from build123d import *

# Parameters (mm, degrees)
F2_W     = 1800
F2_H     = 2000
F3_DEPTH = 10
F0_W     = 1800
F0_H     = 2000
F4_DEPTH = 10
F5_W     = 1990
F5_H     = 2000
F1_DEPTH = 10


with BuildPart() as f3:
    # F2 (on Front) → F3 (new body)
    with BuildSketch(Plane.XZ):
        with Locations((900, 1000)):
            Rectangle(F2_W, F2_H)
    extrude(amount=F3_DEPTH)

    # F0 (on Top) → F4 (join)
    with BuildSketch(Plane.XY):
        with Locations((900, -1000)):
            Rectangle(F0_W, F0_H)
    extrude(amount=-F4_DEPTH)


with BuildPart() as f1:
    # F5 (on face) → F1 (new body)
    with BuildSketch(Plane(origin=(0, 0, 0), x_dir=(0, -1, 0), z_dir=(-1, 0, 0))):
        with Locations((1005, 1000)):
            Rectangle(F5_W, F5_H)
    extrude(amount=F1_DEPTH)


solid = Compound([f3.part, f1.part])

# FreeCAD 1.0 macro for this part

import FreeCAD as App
import Part
import Sketcher


def add_polygon(sketch, points):
    """Adds a closed chain of lines whose ends are joined by coincident constraints."""
    first, n = sketch.GeometryCount, len(points)
    for a, b in zip(points, points[1:] + points[:1]):
        sketch.addGeometry(Part.LineSegment(App.Vector(*a, 0), App.Vector(*b, 0)), False)
    for i in range(n):
        sketch.addConstraint(Sketcher.Constraint("Coincident", first + i, 2, first + (i + 1) % n, 1))

doc = App.newDocument("Part")
body = doc.addObject("PartDesign::Body", "Body")

sketch1 = body.newObject("Sketcher::SketchObject", "Sketch")
sketch1.AttachmentSupport = (doc.getObject("XZ_Plane"), [""])
sketch1.MapMode = "FlatFace"
add_polygon(sketch1, [(0, 2000), (0, 0), (1800, 0), (1800, 2000)])
sketch1.addConstraint(Sketcher.Constraint("Vertical", 0))
sketch1.addConstraint(Sketcher.Constraint("Horizontal", 1))
sketch1.addConstraint(Sketcher.Constraint("Vertical", 2))
sketch1.addConstraint(Sketcher.Constraint("Horizontal", 3))
sketch1.addConstraint(Sketcher.Constraint("Coincident", 0, 2, -1, 1))
sketch1.addConstraint(Sketcher.Constraint("DistanceX", 1, 1, 1, 2, 1800.0))
sketch1.addConstraint(Sketcher.Constraint("DistanceY", 0, 2, 0, 1, 2000.0))
pad1 = body.newObject("PartDesign::Pad", "Pad")
pad1.Profile = sketch1
pad1.Length = 10

sketch2 = body.newObject("Sketcher::SketchObject", "Sketch001")
sketch2.AttachmentSupport = (doc.getObject("XY_Plane"), [""])
sketch2.MapMode = "FlatFace"
add_polygon(sketch2, [(0, 0), (0, -2000), (1800, -2000), (1800, 0)])
sketch2.addConstraint(Sketcher.Constraint("Vertical", 0))
sketch2.addConstraint(Sketcher.Constraint("Horizontal", 1))
sketch2.addConstraint(Sketcher.Constraint("Vertical", 2))
sketch2.addConstraint(Sketcher.Constraint("Horizontal", 3))
sketch2.addConstraint(Sketcher.Constraint("Coincident", 3, 2, -1, 1))
sketch2.addConstraint(Sketcher.Constraint("DistanceX", 1, 1, 1, 2, 1800.0))
sketch2.addConstraint(Sketcher.Constraint("DistanceY", 0, 2, 0, 1, 2000.0))
pad2 = body.newObject("PartDesign::Pad", "Pad001")
pad2.Profile = sketch2
pad2.Length = 10
pad2.Reversed = True
body2 = doc.addObject("PartDesign::Body", "Body001")

sketch3 = body2.newObject("Sketcher::SketchObject", "Sketch002")
sketch3.AttachmentSupport = (doc.getObject("YZ_Plane001"), [""])
sketch3.MapMode = "FlatFace"
add_polygon(sketch3, [(-10, 2000), (-10, 0), (-2000, 0), (-2000, 2000)])
sketch3.addConstraint(Sketcher.Constraint("Vertical", 0))
sketch3.addConstraint(Sketcher.Constraint("Horizontal", 1))
sketch3.addConstraint(Sketcher.Constraint("Vertical", 2))
sketch3.addConstraint(Sketcher.Constraint("Horizontal", 3))
sketch3.addConstraint(Sketcher.Constraint("PointOnObject", 0, 2, -1))
sketch3.addConstraint(Sketcher.Constraint("DistanceX", 1, 2, 1, 1, 1990.0))
sketch3.addConstraint(Sketcher.Constraint("DistanceY", 0, 2, 0, 1, 2000.0))
sketch3.addConstraint(Sketcher.Constraint("DistanceX", 0, 2, -1, 1, 10.0))
pad3 = body2.newObject("PartDesign::Pad", "Pad002")
pad3.Profile = sketch3
pad3.Length = 10
pad3.Reversed = True

doc.recompute()
